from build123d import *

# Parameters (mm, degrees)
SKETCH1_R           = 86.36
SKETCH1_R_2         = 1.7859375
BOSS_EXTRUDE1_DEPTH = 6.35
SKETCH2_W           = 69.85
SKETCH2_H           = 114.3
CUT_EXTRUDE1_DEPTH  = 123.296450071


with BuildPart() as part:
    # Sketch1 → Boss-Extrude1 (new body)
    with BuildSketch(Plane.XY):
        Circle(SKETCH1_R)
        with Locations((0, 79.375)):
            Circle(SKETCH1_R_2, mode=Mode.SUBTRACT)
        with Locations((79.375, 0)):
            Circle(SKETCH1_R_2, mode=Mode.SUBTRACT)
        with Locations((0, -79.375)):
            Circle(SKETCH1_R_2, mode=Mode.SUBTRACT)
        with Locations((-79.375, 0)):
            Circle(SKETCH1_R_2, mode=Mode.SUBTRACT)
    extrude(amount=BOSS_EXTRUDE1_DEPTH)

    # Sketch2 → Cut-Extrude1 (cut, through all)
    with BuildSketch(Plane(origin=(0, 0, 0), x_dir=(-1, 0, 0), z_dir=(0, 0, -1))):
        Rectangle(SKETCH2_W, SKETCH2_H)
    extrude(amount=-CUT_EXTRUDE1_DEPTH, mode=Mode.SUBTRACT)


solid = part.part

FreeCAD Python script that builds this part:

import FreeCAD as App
import Part
import Sketcher

V = App.Vector
Q = App.Units.Quantity

doc = App.newDocument("Part")
body = doc.addObject("PartDesign::Body", "Body")

sketch1 = body.newObject("Sketcher::SketchObject", "Sketch")
sketch1.AttachmentSupport = (doc.getObject("XY_Plane"), [""])
sketch1.MapMode = "FlatFace"
sketch1.addGeometry(Part.Circle(V(0, 0, 0), V(0, 0, 1), 86.36), False)
sketch1.addGeometry(Part.Circle(V(0, -79.375, 0), V(0, 0, 1), 1.785937), False)
sketch1.addGeometry(Part.Circle(V(-79.375, 0, 0), V(0, 0, 1), 1.785937), False)
sketch1.addGeometry(Part.Circle(V(79.375, 0, 0), V(0, 0, 1), 1.785937), False)
sketch1.addGeometry(Part.Circle(V(0, 79.375, 0), V(0, 0, 1), 1.785937), False)
sketch1.addConstraint(Sketcher.Constraint("Coincident", 0, 3, -1, 1))
sketch1.addConstraint(Sketcher.Constraint("Equal", 1, 2))
sketch1.addConstraint(Sketcher.Constraint("Equal", 2, 3))
sketch1.addConstraint(Sketcher.Constraint("Equal", 3, 4))
sketch1.addConstraint(Sketcher.Constraint("Symmetric", 2, 3, 3, 3, -1, 1))
sketch1.addConstraint(Sketcher.Constraint("Symmetric", 1, 3, 4, 3, -1, 1))
sketch1.addConstraint(Sketcher.Constraint("PointOnObject", 1, 3, -2))
sketch1.addConstraint(Sketcher.Constraint("PointOnObject", 2, 3, -1))
sketch1.addConstraint(Sketcher.Constraint("Diameter", 0, Q("6.8 in")))
sketch1.addConstraint(Sketcher.Constraint("Diameter", 1, Q("0.140625 in")))
sketch1.addConstraint(Sketcher.Constraint("DistanceX", 2, 3, 3, 3, Q("6.25 in")))
sketch1.addConstraint(Sketcher.Constraint("DistanceY", 1, 3, 4, 3, Q("6.25 in")))
pad1 = body.newObject("PartDesign::Pad", "Pad")
pad1.Profile = sketch1
pad1.Length = Q("0.25 in")

sketch2 = body.newObject("Sketcher::SketchObject", "Sketch001")
sketch2.AttachmentSupport = (doc.getObject("XY_Plane"), [""])
sketch2.MapMode = "FlatFace"
sketch2.addGeometry(Part.LineSegment(V(34.925, 57.15, 0), V(34.925, -57.15, 0)), False)
sketch2.addGeometry(Part.LineSegment(V(34.925, -57.15, 0), V(-34.925, -57.15, 0)), False)
sketch2.addGeometry(Part.LineSegment(V(-34.925, -57.15, 0), V(-34.925, 57.15, 0)), False)
sketch2.addGeometry(Part.LineSegment(V(-34.925, 57.15, 0), V(34.925, 57.15, 0)), False)
sketch2.addConstraint(Sketcher.Constraint("Coincident", 0, 2, 1, 1))
sketch2.addConstraint(Sketcher.Constraint("Coincident", 1, 2, 2, 1))
sketch2.addConstraint(Sketcher.Constraint("Coincident", 2, 2, 3, 1))
sketch2.addConstraint(Sketcher.Constraint("Coincident", 3, 2, 0, 1))
sketch2.addConstraint(Sketcher.Constraint("Vertical", 0))
sketch2.addConstraint(Sketcher.Constraint("Horizontal", 1))
sketch2.addConstraint(Sketcher.Constraint("Vertical", 2))
sketch2.addConstraint(Sketcher.Constraint("Horizontal", 3))
sketch2.addConstraint(Sketcher.Constraint("Symmetric", 0, 2, 2, 2, -1, 1))
sketch2.addConstraint(Sketcher.Constraint("DistanceY", 0, 2, 0, 1, Q("4.5 in")))
sketch2.addConstraint(Sketcher.Constraint("DistanceX", 1, 2, 1, 1, Q("2.75 in")))
pocket1 = body.newObject("PartDesign::Pocket", "Pocket")
pocket1.Profile = sketch2
pocket1.Type = "ThroughAll"
pocket1.Reversed = True

doc.recompute()
